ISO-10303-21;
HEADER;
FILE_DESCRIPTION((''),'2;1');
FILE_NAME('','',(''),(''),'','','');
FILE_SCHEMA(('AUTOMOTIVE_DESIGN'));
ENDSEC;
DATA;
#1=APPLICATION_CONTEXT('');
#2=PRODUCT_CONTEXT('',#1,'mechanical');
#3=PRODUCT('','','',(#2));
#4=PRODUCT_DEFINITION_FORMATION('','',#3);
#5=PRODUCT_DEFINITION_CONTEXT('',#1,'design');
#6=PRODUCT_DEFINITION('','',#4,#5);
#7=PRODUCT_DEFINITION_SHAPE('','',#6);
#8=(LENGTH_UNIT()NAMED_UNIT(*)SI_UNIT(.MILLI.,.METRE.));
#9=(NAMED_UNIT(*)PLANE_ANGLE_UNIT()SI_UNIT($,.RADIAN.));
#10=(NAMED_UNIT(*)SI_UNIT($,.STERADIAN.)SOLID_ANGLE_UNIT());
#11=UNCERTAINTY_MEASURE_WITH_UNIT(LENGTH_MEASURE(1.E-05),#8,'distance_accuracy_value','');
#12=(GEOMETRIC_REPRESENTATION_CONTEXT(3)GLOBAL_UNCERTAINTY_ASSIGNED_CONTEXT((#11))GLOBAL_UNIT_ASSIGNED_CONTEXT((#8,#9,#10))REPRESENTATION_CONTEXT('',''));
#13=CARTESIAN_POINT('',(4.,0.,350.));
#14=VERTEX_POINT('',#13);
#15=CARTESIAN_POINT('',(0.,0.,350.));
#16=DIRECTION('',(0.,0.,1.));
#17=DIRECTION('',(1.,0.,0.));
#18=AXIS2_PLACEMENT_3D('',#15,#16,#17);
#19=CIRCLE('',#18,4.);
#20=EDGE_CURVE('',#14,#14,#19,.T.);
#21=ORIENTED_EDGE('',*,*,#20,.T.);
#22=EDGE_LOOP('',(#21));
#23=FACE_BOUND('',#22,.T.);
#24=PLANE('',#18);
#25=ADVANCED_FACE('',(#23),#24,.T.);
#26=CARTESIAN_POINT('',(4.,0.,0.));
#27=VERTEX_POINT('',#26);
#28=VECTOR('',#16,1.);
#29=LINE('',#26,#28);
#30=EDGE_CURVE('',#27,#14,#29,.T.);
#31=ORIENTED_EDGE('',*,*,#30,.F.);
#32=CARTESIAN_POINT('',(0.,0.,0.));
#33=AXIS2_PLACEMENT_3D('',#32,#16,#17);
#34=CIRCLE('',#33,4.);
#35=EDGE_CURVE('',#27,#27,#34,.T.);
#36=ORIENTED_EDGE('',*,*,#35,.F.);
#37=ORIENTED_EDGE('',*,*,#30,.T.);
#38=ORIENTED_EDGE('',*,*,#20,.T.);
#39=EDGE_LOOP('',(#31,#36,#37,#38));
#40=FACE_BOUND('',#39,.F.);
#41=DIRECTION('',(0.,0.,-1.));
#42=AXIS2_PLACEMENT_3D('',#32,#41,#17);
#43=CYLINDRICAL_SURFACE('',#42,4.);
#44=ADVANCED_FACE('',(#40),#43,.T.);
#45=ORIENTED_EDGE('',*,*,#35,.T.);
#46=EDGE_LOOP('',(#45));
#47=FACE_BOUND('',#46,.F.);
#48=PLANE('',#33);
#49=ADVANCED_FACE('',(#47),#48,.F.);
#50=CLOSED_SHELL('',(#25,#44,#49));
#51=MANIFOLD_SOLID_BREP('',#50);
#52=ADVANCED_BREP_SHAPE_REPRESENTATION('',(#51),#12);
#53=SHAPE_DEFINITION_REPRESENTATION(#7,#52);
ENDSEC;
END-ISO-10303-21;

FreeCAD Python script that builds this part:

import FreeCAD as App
import Part
import Sketcher

V = App.Vector
Q = App.Units.Quantity

doc = App.newDocument("Part")
params = doc.addObject("Spreadsheet::Sheet", "Params")
for row, (alias, value) in enumerate([
    ("sketch1_diameter", "8 mm"),
    ("pad1_length", "350 mm"),
], start=1):
    params.set(f"A{row}", alias)
    params.set(f"B{row}", "=" + value)
    params.setAlias(f"B{row}", alias)

body = doc.addObject("PartDesign::Body", "Body")

# Sketch on XY plane
sketch1 = doc.addObject("Sketcher::SketchObject", "Sketch")
body.addObject(sketch1)
sketch1.AttachmentSupport = (doc.XY_Plane, [""])
sketch1.MapMode = "FlatFace"
sketch1.addGeometry(Part.Circle(V(0, 0, 0), V(0, 0, 1), 4), False)
sketch1.addConstraint(Sketcher.Constraint("Coincident", 0, 3, -1, 1))
sketch1.addConstraint(Sketcher.Constraint("Diameter", 0, Q("8 mm")))
sketch1.setExpression("Constraints[1]", "Params.sketch1_diameter")
pad1 = doc.addObject("PartDesign::Pad", "Pad")
body.addObject(pad1)
pad1.Profile = sketch1
pad1.setExpression("Length", "Params.pad1_length")

doc.recompute()
